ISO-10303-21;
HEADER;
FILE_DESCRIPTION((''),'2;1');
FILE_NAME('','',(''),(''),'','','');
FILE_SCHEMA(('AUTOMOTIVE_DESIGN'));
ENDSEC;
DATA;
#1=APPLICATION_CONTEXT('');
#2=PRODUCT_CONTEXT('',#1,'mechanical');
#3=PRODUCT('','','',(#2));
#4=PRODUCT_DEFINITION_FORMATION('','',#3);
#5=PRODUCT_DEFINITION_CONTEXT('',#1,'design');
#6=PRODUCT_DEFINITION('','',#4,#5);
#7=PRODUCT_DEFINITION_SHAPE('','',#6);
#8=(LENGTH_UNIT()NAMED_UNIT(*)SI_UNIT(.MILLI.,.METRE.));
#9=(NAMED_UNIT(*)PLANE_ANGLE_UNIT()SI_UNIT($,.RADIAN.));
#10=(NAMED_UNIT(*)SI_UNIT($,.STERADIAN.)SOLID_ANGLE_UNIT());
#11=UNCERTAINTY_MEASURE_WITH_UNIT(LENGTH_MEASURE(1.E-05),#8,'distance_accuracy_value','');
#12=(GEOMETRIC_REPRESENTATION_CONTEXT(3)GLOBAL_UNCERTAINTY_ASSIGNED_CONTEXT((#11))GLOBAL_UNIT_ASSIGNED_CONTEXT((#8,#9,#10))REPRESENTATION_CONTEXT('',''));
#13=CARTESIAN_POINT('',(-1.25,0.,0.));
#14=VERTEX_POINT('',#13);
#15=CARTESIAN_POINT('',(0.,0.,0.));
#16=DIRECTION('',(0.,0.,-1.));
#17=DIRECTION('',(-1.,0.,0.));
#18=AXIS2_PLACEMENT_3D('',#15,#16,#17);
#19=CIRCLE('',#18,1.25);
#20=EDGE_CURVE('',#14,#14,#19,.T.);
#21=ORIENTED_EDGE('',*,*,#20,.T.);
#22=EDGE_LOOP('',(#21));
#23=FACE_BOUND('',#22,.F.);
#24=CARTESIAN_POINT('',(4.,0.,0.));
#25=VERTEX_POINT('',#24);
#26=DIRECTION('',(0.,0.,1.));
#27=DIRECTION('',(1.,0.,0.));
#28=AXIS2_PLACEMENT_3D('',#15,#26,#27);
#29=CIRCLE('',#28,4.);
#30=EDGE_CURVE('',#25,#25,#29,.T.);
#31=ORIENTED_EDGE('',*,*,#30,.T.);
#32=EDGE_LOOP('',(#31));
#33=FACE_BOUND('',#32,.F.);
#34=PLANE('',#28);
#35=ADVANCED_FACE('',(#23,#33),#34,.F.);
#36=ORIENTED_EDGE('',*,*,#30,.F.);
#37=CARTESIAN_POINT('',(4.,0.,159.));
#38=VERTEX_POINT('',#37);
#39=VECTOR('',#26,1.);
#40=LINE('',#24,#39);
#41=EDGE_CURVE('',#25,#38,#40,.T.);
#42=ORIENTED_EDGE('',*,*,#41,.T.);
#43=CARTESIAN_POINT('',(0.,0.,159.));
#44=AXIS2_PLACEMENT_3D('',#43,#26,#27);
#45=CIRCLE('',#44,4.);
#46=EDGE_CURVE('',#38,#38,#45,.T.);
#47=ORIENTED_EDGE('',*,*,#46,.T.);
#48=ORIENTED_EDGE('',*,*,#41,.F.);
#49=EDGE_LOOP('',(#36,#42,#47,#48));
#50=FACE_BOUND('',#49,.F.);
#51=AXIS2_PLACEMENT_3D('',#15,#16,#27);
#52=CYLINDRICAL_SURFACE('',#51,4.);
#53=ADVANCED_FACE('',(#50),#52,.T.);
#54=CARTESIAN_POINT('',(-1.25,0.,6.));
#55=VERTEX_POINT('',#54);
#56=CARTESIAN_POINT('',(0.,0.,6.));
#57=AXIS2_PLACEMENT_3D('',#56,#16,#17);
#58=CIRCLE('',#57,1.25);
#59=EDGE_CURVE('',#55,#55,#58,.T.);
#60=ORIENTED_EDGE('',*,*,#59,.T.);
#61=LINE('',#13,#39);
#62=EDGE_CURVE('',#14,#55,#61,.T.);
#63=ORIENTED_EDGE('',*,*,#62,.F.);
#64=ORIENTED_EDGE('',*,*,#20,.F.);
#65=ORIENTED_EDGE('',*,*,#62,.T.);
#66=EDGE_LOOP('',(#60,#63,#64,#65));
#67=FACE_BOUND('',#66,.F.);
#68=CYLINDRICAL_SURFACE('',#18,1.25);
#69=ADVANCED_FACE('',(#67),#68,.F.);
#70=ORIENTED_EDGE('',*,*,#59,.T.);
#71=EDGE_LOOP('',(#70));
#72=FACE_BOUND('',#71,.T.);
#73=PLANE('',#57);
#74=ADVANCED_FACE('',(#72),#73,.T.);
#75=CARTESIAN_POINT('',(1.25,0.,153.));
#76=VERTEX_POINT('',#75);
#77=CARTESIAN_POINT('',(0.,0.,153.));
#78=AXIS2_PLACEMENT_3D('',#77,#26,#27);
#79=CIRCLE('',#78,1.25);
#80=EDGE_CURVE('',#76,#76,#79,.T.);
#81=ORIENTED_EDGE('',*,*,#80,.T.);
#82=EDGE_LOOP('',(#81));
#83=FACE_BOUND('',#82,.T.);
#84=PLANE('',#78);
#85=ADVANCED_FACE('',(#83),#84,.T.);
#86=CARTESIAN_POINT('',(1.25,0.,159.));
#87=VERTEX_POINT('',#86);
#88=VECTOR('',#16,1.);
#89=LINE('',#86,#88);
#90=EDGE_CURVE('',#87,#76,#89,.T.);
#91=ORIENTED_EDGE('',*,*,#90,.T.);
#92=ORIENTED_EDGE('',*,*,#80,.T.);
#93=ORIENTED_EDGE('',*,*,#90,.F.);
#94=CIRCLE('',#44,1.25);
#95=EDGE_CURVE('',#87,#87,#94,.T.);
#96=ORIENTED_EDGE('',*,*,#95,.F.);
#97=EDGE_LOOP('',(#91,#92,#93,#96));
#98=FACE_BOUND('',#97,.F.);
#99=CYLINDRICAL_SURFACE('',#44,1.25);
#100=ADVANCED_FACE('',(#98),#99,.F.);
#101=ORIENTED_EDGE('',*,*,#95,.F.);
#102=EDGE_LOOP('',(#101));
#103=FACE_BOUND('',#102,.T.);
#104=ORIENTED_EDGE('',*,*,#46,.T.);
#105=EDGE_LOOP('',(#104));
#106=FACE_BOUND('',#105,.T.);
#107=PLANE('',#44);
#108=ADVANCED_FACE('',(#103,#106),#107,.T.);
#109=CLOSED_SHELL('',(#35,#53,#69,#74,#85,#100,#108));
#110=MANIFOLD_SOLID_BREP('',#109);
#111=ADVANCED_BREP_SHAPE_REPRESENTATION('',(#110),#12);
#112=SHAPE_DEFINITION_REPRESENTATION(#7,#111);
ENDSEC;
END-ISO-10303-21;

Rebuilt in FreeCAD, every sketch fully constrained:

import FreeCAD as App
import Part
import Sketcher
from FreeCAD import Vector

doc = App.newDocument("Part")
body = doc.addObject("PartDesign::Body", "Body")

# Sketch on XY plane
sketch1 = body.newObject("Sketcher::SketchObject", "Sketch")
sketch1.AttachmentSupport = (doc.getObject("XY_Plane"), [""])
sketch1.MapMode = "FlatFace"
sketch1.addGeometry(Part.Circle(Vector(0, 0, 0), Vector(0, 0, 1), 4), False)
sketch1.addConstraint([
    Sketcher.Constraint("Coincident", 0, 3, -1, 1),
    Sketcher.Constraint("Diameter", 0, 8.0),
])
pad1 = body.newObject("PartDesign::Pad", "Pad")
pad1.Profile = sketch1
pad1.Length = 159

# Sketch on XY plane
sketch2 = body.newObject("Sketcher::SketchObject", "Sketch001")
sketch2.AttachmentSupport = (doc.getObject("XY_Plane"), [""])
sketch2.MapMode = "FlatFace"
sketch2.addGeometry(Part.Circle(Vector(0, 0, 0), Vector(0, 0, 1), 1.2), False)
sketch2.addConstraint([
    Sketcher.Constraint("Coincident", 0, 3, -1, 1),
    Sketcher.Constraint("Diameter", 0, 2.5),
])
pocket1 = body.newObject("PartDesign::Pocket", "Pocket")
pocket1.Profile = sketch2
pocket1.Length = 6
pocket1.Reversed = True

# Sketch on XY plane
sketch3 = body.newObject("Sketcher::SketchObject", "Sketch002")
sketch3.AttachmentSupport = (doc.getObject("XY_Plane"), [""])
sketch3.MapMode = "FlatFace"
sketch3.AttachmentOffset = App.Placement(Vector(0, 0, 159), App.Rotation())
sketch3.addGeometry(Part.Circle(Vector(0, 0, 0), Vector(0, 0, 1), 1.2), False)
sketch3.addConstraint([
    Sketcher.Constraint("Coincident", 0, 3, -1, 1),
    Sketcher.Constraint("Diameter", 0, 2.5),
])
pocket2 = body.newObject("PartDesign::Pocket", "Pocket001")
pocket2.Profile = sketch3
pocket2.Length = 6

doc.recompute()
